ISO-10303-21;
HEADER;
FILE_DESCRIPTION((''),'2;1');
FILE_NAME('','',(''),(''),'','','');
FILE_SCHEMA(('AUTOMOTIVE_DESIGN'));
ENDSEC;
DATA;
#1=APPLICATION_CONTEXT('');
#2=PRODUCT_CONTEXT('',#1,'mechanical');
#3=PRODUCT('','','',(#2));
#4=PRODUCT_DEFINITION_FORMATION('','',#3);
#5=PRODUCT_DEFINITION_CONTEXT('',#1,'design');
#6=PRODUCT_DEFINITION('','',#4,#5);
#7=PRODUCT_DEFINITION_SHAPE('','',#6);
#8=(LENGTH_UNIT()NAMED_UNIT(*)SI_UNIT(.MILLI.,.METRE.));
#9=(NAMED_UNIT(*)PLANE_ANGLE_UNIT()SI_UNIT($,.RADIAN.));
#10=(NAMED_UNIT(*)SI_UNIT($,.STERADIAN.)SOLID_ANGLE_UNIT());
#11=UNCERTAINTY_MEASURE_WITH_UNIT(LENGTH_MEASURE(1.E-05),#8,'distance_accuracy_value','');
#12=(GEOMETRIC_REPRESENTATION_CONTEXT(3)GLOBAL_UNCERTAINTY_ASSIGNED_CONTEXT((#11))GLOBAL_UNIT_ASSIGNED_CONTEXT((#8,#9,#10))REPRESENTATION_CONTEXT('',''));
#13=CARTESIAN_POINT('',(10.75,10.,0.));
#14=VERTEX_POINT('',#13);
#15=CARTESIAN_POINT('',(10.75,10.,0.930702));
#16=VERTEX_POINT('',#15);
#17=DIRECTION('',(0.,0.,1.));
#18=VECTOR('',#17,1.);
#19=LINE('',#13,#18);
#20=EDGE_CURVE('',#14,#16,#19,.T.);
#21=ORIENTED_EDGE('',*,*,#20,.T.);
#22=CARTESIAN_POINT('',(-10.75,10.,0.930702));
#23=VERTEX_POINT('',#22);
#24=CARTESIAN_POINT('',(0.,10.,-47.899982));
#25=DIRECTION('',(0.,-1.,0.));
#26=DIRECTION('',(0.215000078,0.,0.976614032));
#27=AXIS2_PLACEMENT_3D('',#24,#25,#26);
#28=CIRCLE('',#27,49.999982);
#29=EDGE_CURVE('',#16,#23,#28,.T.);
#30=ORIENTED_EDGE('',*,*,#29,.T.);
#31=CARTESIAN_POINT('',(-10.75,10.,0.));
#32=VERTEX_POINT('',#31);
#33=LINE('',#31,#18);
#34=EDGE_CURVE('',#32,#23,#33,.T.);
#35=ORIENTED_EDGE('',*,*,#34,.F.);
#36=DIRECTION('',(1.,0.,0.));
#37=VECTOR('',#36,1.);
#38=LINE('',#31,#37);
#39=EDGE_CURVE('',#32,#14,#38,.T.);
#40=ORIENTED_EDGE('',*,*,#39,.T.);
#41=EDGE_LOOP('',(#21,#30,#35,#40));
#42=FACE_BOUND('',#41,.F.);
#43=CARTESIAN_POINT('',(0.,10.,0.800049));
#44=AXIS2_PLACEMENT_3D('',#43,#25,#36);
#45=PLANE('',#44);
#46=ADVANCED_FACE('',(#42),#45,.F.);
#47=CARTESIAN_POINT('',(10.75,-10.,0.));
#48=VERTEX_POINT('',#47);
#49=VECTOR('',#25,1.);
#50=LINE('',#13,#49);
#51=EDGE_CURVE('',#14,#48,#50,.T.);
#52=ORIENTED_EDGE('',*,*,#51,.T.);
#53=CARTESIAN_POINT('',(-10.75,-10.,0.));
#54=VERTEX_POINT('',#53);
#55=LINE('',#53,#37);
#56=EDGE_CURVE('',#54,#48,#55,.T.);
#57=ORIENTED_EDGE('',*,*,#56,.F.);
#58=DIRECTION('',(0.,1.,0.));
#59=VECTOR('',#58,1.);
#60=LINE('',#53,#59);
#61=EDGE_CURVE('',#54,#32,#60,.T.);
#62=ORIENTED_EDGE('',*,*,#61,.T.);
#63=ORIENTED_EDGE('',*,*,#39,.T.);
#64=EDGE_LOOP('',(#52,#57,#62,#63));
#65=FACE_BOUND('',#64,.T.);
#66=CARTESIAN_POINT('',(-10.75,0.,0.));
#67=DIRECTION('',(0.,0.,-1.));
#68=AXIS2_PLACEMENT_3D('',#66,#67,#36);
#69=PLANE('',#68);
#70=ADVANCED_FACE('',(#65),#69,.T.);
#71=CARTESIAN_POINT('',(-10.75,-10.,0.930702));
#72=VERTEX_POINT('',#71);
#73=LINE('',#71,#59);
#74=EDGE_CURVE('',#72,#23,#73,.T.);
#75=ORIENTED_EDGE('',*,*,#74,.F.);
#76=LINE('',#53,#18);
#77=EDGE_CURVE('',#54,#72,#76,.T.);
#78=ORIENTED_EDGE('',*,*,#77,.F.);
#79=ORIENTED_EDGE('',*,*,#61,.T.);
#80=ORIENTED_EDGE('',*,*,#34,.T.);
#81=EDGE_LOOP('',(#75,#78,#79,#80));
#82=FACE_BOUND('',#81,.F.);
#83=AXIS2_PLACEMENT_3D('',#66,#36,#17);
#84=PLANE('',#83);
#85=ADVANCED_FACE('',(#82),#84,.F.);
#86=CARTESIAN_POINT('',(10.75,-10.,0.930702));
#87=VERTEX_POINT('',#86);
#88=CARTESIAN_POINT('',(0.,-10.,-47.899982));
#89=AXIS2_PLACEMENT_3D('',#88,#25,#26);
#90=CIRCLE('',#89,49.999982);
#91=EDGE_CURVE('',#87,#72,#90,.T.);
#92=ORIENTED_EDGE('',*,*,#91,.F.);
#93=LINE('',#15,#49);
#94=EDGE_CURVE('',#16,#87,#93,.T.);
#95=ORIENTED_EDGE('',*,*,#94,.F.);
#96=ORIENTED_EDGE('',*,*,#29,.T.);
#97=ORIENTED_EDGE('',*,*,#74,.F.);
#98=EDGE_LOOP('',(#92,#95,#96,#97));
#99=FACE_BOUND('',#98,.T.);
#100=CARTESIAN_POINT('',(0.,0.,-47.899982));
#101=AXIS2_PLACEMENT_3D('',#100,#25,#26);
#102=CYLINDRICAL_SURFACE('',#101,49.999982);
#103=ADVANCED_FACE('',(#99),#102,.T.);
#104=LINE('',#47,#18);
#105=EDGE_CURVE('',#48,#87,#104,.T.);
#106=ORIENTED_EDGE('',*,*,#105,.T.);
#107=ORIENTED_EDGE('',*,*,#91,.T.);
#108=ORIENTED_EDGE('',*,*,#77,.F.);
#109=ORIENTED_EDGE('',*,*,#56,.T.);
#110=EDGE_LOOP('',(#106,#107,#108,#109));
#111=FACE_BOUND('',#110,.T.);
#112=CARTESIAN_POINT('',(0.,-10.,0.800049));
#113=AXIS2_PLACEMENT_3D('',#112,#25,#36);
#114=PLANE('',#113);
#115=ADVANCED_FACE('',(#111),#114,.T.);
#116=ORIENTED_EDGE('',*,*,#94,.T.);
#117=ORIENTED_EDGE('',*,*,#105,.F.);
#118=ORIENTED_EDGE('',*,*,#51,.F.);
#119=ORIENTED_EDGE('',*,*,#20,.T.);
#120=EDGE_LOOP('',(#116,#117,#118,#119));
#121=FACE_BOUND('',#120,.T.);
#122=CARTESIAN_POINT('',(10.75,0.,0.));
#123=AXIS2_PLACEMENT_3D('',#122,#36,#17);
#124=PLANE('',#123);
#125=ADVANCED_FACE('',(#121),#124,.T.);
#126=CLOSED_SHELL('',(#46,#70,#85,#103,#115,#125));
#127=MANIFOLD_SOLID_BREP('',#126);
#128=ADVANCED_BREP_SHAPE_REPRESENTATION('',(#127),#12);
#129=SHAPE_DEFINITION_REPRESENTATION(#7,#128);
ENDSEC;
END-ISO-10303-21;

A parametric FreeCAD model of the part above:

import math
import FreeCAD as App
import Part
import Sketcher
from FreeCAD import Vector

doc = App.newDocument("Part")
body = doc.addObject("PartDesign::Body", "Body")

# Sketch on XZ plane
sketch1 = doc.addObject("Sketcher::SketchObject", "Sketch")
body.addObject(sketch1)
sketch1.AttachmentSupport = (doc.XZ_Plane, [""])
sketch1.MapMode = "FlatFace"
sketch1.addGeometry(Part.LineSegment(Vector(-10.8, 0, 0), Vector(10.8, 0, 0)), False)
sketch1.addGeometry(Part.LineSegment(Vector(10.8, 0, 0), Vector(10.8, 0.9, 0)), False)
sketch1.addGeometry(Part.ArcOfCircle(Part.Circle(Vector(0, -47.9, 0), Vector(0, 0, 1), 50), math.radians(78), math.radians(102)), False)
sketch1.addGeometry(Part.LineSegment(Vector(-10.8, 0.9, 0), Vector(-10.8, 0, 0)), False)
sketch1.addConstraint(Sketcher.Constraint("Coincident", 0, 2, 1, 1))
sketch1.addConstraint(Sketcher.Constraint("Coincident", 1, 2, 2, 1))
sketch1.addConstraint(Sketcher.Constraint("Coincident", 2, 2, 3, 1))
sketch1.addConstraint(Sketcher.Constraint("Coincident", 3, 2, 0, 1))
sketch1.addConstraint(Sketcher.Constraint("Horizontal", 0))
sketch1.addConstraint(Sketcher.Constraint("Vertical", 1))
sketch1.addConstraint(Sketcher.Constraint("Vertical", 3))
sketch1.addConstraint(Sketcher.Constraint("Symmetric", 0, 2, 3, 2, -1, 1))
sketch1.addConstraint(Sketcher.Constraint("PointOnObject", 2, 3, -2))
sketch1.addConstraint(Sketcher.Constraint("DistanceX", 0, 1, 0, 2, 21.5))
sketch1.addConstraint(Sketcher.Constraint("Radius", 2, 49.999982))
sketch1.addConstraint(Sketcher.Constraint("DistanceY", -1, 1, 2, 2, 0.930702))
pad1 = doc.addObject("PartDesign::Pad", "Pad")
body.addObject(pad1)
pad1.Profile = sketch1
pad1.Length = 20
pad1.Midplane = True

doc.recompute()
